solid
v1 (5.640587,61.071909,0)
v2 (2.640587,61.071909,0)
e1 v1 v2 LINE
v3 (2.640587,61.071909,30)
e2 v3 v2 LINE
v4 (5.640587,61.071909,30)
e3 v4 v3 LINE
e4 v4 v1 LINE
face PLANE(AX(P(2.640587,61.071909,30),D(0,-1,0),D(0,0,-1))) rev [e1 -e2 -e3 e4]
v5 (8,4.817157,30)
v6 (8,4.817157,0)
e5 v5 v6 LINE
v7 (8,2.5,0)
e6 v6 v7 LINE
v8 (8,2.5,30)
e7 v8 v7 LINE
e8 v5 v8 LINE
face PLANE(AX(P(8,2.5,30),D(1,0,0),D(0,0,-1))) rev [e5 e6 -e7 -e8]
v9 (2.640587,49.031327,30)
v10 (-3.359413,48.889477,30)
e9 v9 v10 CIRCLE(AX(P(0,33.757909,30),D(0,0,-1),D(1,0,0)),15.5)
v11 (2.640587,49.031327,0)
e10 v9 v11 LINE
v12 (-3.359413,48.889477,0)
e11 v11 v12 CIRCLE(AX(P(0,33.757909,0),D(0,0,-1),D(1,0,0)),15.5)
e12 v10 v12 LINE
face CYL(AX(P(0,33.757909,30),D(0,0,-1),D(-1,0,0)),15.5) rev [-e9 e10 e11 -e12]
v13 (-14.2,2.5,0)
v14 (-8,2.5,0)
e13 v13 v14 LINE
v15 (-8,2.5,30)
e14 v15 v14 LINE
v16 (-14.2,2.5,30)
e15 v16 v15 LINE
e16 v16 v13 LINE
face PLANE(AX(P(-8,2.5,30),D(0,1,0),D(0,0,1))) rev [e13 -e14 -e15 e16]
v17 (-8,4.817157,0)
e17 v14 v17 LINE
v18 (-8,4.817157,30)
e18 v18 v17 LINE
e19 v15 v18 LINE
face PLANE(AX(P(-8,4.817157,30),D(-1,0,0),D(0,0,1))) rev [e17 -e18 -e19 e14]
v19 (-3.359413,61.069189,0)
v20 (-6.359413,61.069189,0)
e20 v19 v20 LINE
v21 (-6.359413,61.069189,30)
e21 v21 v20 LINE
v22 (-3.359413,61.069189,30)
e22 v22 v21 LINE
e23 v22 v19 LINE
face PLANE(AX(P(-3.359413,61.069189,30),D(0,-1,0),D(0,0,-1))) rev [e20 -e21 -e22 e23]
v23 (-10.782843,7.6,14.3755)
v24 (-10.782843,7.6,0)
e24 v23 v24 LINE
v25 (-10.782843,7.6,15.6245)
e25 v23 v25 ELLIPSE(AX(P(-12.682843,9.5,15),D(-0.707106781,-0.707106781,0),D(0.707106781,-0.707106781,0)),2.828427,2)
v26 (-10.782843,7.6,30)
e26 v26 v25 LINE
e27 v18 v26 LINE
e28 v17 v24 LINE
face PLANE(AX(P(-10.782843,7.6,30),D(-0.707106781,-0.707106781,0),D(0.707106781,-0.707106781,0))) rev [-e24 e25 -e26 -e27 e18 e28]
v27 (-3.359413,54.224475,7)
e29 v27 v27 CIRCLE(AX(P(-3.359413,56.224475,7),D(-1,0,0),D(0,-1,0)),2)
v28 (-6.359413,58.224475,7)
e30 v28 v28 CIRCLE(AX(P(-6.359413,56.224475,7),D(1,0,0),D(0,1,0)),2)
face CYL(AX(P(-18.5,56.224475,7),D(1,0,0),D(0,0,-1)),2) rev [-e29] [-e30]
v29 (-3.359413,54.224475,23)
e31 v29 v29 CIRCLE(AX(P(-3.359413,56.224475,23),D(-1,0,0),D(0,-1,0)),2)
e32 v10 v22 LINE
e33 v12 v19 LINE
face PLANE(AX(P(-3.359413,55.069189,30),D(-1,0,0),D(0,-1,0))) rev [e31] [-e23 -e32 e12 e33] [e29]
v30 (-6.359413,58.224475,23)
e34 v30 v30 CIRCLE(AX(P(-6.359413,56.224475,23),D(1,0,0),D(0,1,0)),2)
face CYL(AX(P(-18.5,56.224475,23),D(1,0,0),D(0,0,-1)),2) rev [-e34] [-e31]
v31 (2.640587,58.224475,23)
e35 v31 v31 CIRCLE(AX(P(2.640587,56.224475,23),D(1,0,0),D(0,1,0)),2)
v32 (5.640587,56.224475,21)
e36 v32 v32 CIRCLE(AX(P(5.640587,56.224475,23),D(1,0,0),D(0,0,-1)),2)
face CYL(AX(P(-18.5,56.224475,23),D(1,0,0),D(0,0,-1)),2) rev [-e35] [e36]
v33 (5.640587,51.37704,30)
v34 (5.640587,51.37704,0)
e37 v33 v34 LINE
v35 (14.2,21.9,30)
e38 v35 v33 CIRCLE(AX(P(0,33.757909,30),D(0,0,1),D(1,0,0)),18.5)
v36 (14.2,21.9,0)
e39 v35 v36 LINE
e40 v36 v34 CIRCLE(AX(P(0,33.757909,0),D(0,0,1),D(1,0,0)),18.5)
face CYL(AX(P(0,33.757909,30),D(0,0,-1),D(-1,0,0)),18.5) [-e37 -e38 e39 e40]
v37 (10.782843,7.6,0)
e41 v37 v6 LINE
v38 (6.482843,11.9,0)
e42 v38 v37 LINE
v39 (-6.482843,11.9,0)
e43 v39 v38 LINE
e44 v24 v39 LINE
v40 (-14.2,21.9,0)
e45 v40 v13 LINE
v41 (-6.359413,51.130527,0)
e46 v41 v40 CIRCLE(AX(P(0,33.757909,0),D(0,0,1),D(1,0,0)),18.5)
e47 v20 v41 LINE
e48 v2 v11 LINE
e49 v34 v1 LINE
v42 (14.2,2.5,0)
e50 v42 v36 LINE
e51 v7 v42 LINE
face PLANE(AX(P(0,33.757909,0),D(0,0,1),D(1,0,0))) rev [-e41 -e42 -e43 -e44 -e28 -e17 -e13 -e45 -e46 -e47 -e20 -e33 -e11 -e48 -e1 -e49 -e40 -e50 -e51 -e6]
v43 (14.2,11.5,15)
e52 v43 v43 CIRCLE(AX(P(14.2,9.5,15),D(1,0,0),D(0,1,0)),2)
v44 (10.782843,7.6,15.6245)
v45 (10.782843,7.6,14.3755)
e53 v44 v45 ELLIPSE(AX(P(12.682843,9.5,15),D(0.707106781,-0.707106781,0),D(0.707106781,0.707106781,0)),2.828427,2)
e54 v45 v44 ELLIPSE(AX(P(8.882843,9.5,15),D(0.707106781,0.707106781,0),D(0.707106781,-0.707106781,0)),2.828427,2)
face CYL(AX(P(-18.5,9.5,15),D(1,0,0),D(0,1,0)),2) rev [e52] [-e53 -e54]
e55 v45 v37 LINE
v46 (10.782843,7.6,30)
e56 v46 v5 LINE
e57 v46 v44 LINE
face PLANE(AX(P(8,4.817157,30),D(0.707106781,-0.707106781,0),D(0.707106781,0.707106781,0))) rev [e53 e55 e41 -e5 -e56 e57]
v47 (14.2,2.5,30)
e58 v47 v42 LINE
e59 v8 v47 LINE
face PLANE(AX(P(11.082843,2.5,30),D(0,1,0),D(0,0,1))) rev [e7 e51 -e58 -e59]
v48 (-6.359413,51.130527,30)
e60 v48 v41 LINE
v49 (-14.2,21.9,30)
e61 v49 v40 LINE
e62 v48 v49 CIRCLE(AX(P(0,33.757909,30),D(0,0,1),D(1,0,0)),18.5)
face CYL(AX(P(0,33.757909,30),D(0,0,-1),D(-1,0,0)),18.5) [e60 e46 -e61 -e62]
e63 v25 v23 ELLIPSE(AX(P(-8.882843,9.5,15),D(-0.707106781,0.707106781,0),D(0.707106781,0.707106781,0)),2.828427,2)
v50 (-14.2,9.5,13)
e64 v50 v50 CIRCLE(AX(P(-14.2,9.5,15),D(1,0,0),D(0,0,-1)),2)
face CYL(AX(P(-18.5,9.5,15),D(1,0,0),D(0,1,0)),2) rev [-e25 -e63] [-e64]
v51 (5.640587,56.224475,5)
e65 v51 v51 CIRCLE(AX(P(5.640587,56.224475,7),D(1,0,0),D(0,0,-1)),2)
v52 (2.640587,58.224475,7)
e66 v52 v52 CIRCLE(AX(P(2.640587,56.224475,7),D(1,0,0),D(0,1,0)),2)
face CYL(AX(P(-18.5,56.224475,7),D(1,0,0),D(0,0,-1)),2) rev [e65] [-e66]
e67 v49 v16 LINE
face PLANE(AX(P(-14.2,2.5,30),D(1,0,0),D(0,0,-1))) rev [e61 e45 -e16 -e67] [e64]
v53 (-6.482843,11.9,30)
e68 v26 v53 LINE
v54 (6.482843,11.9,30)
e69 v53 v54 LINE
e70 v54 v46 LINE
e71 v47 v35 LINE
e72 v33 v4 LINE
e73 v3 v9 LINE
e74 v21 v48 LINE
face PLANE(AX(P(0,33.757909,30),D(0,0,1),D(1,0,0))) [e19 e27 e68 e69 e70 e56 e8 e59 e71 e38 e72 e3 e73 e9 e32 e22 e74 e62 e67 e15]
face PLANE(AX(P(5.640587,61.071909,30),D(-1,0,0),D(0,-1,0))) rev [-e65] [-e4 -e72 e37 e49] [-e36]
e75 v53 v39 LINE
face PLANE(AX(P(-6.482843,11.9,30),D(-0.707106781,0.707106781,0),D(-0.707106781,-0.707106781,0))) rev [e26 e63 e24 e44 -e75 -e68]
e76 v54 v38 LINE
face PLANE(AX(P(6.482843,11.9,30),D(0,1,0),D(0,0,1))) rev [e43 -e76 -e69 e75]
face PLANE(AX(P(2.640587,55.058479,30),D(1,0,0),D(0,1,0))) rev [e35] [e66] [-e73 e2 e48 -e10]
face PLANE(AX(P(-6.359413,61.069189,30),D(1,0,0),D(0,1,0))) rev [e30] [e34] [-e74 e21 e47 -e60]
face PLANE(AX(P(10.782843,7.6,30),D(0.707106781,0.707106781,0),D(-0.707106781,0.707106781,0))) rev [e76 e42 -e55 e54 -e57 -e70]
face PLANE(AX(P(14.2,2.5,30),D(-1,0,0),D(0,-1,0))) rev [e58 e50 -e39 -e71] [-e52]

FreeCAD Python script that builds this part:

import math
import FreeCAD as App
import Part
import Sketcher

doc = App.newDocument("Part")
body = doc.addObject("PartDesign::Body", "Body")

# Sketch on XY plane
sketch1 = doc.addObject("Sketcher::SketchObject", "Sketch")
body.addObject(sketch1)
sketch1.AttachmentSupport = (doc.XY_Plane, [""])
sketch1.MapMode = "FlatFace"
sketch1.addGeometry([
    Part.LineSegment(App.Vector(5.6, 61.1, 0), App.Vector(2.6, 61.1, 0)),  # 0
    Part.LineSegment(App.Vector(2.6, 61.1, 0), App.Vector(2.6, 49, 0)),  # 1
    Part.ArcOfCircle(Part.Circle(App.Vector(0, 33.8, 0), App.Vector(0, 0, 1), 15.5), math.radians(103), math.radians(440)),  # 2
    Part.LineSegment(App.Vector(-3.4, 48.9, 0), App.Vector(-3.4, 61.1, 0)),  # 3
    Part.LineSegment(App.Vector(-3.4, 61.1, 0), App.Vector(-6.4, 61.1, 0)),  # 4
    Part.LineSegment(App.Vector(-6.4, 61.1, 0), App.Vector(-6.4, 51.1, 0)),  # 5
    Part.ArcOfCircle(Part.Circle(App.Vector(0, 33.8, 0), App.Vector(0, 0, 1), 18.5), math.radians(110), math.radians(220)),  # 6
    Part.LineSegment(App.Vector(-14.2, 21.9, 0), App.Vector(-14.2, 2.5, 0)),  # 7
    Part.LineSegment(App.Vector(-14.2, 2.5, 0), App.Vector(-8, 2.5, 0)),  # 8
    Part.LineSegment(App.Vector(-8, 2.5, 0), App.Vector(-8, 4.8, 0)),  # 9
    Part.LineSegment(App.Vector(-8, 4.8, 0), App.Vector(-10.8, 7.6, 0)),  # 10
    Part.LineSegment(App.Vector(-10.8, 7.6, 0), App.Vector(-6.5, 11.9, 0)),  # 11
    Part.LineSegment(App.Vector(-6.5, 11.9, 0), App.Vector(6.5, 11.9, 0)),  # 12
    Part.LineSegment(App.Vector(6.5, 11.9, 0), App.Vector(10.8, 7.6, 0)),  # 13
    Part.LineSegment(App.Vector(10.8, 7.6, 0), App.Vector(8, 4.8, 0)),  # 14
    Part.LineSegment(App.Vector(8, 4.8, 0), App.Vector(8, 2.5, 0)),  # 15
    Part.LineSegment(App.Vector(8, 2.5, 0), App.Vector(14.2, 2.5, 0)),  # 16
    Part.LineSegment(App.Vector(14.2, 2.5, 0), App.Vector(14.2, 21.9, 0)),  # 17
    Part.ArcOfCircle(Part.Circle(App.Vector(0, 33.8, 0), App.Vector(0, 0, 1), 18.5), math.radians(-40), math.radians(72)),  # 18
    Part.LineSegment(App.Vector(5.6, 51.4, 0), App.Vector(5.6, 61.1, 0)),  # 19
], False)
sketch1.addConstraint([
    Sketcher.Constraint("Coincident", 0, 2, 1, 1),
    Sketcher.Constraint("Coincident", 1, 2, 2, 2),
    Sketcher.Constraint("Coincident", 2, 1, 3, 1),
    Sketcher.Constraint("Coincident", 3, 2, 4, 1),
    Sketcher.Constraint("Coincident", 4, 2, 5, 1),
    Sketcher.Constraint("Coincident", 5, 2, 6, 1),
    Sketcher.Constraint("Coincident", 6, 2, 7, 1),
    Sketcher.Constraint("Coincident", 7, 2, 8, 1),
    Sketcher.Constraint("Coincident", 8, 2, 9, 1),
    Sketcher.Constraint("Coincident", 9, 2, 10, 1),
    Sketcher.Constraint("Coincident", 10, 2, 11, 1),
    Sketcher.Constraint("Coincident", 11, 2, 12, 1),
    Sketcher.Constraint("Coincident", 12, 2, 13, 1),
    Sketcher.Constraint("Coincident", 13, 2, 14, 1),
    Sketcher.Constraint("Coincident", 14, 2, 15, 1),
    Sketcher.Constraint("Coincident", 15, 2, 16, 1),
    Sketcher.Constraint("Coincident", 16, 2, 17, 1),
    Sketcher.Constraint("Coincident", 17, 2, 18, 1),
    Sketcher.Constraint("Coincident", 18, 2, 19, 1),
    Sketcher.Constraint("Coincident", 19, 2, 0, 1),
    Sketcher.Constraint("Horizontal", 0),
    Sketcher.Constraint("Vertical", 1),
    Sketcher.Constraint("Vertical", 3),
    Sketcher.Constraint("Horizontal", 4),
    Sketcher.Constraint("Vertical", 5),
    Sketcher.Constraint("Vertical", 7),
    Sketcher.Constraint("Horizontal", 8),
    Sketcher.Constraint("Vertical", 9),
    Sketcher.Constraint("Horizontal", 12),
    Sketcher.Constraint("Vertical", 15),
    Sketcher.Constraint("Horizontal", 16),
    Sketcher.Constraint("Vertical", 17),
    Sketcher.Constraint("Vertical", 19),
    Sketcher.Constraint("Coincident", 6, 3, 2, 3),
    Sketcher.Constraint("Coincident", 18, 3, 2, 3),
    Sketcher.Constraint("Equal", 6, 18),
    Sketcher.Constraint("Symmetric", 10, 2, 13, 2, -2),
    Sketcher.Constraint("Symmetric", 9, 2, 14, 2, -2),
    Sketcher.Constraint("Symmetric", 7, 2, 16, 2, -2),
    Sketcher.Constraint("PointOnObject", 2, 3, -2),
    Sketcher.Constraint("Perpendicular", 10, 11),
    Sketcher.Constraint("Perpendicular", 11, 13),
    Sketcher.Constraint("Perpendicular", 13, 14),
    Sketcher.Constraint("Equal", 0, 4),
    Sketcher.Constraint("Radius", 2, 15.5),
    Sketcher.Constraint("Radius", 6, 18.5),
    Sketcher.Constraint("DistanceX", 0, 2, 0, 1, 3.0),
    Sketcher.Constraint("DistanceX", 8, 1, 8, 2, 6.2),
    Sketcher.Constraint("DistanceY", 7, 2, 7, 1, 19.4),
    Sketcher.Constraint("DistanceX", 8, 2, -1, 1, 8.0),
    Sketcher.Constraint("DistanceX", 2, 1, 1, 2, 6.0),
    Sketcher.Constraint("DistanceY", 11, 2, 6, 2, 10.0),
    Sketcher.Constraint("DistanceY", -1, 1, 6, 2, 21.9),
    Sketcher.Constraint("DistanceY", -1, 1, 10, 2, 7.6),
    Sketcher.Constraint("DistanceY", 2, 3, 0, 2, 27.314001),
    Sketcher.Constraint("DistanceY", 19, 1, 19, 2, 9.69487),
    Sketcher.Constraint("DistanceX", 12, 1, 12, 2, 12.965685),
    Sketcher.Constraint("DistanceY", 3, 1, 3, 2, 12.179713),
])
pad1 = doc.addObject("PartDesign::Pad", "Pad")
body.addObject(pad1)
pad1.Profile = sketch1
pad1.Length = 30

# Sketch on YZ plane
sketch2 = doc.addObject("Sketcher::SketchObject", "Sketch001")
body.addObject(sketch2)
sketch2.AttachmentSupport = (doc.YZ_Plane, [""])
sketch2.MapMode = "FlatFace"
sketch2.AttachmentOffset = App.Placement(App.Vector(0, 0, 5.640587), App.Rotation())
sketch2.addGeometry([
    Part.Circle(App.Vector(56.2, 7, 0), App.Vector(0, 0, 1), 2),
    Part.Circle(App.Vector(56.2, 23, 0), App.Vector(0, 0, 1), 2),
], False)
sketch2.addConstraint([
    Sketcher.Constraint("Equal", 0, 1),
    Sketcher.Constraint("Vertical", 0, 3, 1, 3),
    Sketcher.Constraint("Diameter", 0, 4.0),
    Sketcher.Constraint("DistanceY", -1, 1, 0, 3, 7.0),
    Sketcher.Constraint("DistanceY", -1, 1, 1, 3, 23.0),
    Sketcher.Constraint("DistanceX", -1, 1, 0, 3, 56.224475),
])
pocket1 = doc.addObject("PartDesign::Pocket", "Pocket")
body.addObject(pocket1)
pocket1.Profile = sketch2
pocket1.Type = "ThroughAll"

# Sketch on YZ plane
sketch3 = doc.addObject("Sketcher::SketchObject", "Sketch002")
body.addObject(sketch3)
sketch3.AttachmentSupport = (doc.YZ_Plane, [""])
sketch3.MapMode = "FlatFace"
sketch3.AttachmentOffset = App.Placement(App.Vector(0, 0, 14.2), App.Rotation())
sketch3.addGeometry(Part.Circle(App.Vector(9.5, 15, 0), App.Vector(0, 0, 1), 2), False)
sketch3.addConstraint([
    Sketcher.Constraint("Diameter", 0, 4.0),
    Sketcher.Constraint("DistanceY", -1, 1, 0, 3, 15.0),
    Sketcher.Constraint("DistanceX", -1, 1, 0, 3, 9.5),
])
pocket2 = doc.addObject("PartDesign::Pocket", "Pocket001")
body.addObject(pocket2)
pocket2.Profile = sketch3
pocket2.Type = "ThroughAll"

doc.recompute()
